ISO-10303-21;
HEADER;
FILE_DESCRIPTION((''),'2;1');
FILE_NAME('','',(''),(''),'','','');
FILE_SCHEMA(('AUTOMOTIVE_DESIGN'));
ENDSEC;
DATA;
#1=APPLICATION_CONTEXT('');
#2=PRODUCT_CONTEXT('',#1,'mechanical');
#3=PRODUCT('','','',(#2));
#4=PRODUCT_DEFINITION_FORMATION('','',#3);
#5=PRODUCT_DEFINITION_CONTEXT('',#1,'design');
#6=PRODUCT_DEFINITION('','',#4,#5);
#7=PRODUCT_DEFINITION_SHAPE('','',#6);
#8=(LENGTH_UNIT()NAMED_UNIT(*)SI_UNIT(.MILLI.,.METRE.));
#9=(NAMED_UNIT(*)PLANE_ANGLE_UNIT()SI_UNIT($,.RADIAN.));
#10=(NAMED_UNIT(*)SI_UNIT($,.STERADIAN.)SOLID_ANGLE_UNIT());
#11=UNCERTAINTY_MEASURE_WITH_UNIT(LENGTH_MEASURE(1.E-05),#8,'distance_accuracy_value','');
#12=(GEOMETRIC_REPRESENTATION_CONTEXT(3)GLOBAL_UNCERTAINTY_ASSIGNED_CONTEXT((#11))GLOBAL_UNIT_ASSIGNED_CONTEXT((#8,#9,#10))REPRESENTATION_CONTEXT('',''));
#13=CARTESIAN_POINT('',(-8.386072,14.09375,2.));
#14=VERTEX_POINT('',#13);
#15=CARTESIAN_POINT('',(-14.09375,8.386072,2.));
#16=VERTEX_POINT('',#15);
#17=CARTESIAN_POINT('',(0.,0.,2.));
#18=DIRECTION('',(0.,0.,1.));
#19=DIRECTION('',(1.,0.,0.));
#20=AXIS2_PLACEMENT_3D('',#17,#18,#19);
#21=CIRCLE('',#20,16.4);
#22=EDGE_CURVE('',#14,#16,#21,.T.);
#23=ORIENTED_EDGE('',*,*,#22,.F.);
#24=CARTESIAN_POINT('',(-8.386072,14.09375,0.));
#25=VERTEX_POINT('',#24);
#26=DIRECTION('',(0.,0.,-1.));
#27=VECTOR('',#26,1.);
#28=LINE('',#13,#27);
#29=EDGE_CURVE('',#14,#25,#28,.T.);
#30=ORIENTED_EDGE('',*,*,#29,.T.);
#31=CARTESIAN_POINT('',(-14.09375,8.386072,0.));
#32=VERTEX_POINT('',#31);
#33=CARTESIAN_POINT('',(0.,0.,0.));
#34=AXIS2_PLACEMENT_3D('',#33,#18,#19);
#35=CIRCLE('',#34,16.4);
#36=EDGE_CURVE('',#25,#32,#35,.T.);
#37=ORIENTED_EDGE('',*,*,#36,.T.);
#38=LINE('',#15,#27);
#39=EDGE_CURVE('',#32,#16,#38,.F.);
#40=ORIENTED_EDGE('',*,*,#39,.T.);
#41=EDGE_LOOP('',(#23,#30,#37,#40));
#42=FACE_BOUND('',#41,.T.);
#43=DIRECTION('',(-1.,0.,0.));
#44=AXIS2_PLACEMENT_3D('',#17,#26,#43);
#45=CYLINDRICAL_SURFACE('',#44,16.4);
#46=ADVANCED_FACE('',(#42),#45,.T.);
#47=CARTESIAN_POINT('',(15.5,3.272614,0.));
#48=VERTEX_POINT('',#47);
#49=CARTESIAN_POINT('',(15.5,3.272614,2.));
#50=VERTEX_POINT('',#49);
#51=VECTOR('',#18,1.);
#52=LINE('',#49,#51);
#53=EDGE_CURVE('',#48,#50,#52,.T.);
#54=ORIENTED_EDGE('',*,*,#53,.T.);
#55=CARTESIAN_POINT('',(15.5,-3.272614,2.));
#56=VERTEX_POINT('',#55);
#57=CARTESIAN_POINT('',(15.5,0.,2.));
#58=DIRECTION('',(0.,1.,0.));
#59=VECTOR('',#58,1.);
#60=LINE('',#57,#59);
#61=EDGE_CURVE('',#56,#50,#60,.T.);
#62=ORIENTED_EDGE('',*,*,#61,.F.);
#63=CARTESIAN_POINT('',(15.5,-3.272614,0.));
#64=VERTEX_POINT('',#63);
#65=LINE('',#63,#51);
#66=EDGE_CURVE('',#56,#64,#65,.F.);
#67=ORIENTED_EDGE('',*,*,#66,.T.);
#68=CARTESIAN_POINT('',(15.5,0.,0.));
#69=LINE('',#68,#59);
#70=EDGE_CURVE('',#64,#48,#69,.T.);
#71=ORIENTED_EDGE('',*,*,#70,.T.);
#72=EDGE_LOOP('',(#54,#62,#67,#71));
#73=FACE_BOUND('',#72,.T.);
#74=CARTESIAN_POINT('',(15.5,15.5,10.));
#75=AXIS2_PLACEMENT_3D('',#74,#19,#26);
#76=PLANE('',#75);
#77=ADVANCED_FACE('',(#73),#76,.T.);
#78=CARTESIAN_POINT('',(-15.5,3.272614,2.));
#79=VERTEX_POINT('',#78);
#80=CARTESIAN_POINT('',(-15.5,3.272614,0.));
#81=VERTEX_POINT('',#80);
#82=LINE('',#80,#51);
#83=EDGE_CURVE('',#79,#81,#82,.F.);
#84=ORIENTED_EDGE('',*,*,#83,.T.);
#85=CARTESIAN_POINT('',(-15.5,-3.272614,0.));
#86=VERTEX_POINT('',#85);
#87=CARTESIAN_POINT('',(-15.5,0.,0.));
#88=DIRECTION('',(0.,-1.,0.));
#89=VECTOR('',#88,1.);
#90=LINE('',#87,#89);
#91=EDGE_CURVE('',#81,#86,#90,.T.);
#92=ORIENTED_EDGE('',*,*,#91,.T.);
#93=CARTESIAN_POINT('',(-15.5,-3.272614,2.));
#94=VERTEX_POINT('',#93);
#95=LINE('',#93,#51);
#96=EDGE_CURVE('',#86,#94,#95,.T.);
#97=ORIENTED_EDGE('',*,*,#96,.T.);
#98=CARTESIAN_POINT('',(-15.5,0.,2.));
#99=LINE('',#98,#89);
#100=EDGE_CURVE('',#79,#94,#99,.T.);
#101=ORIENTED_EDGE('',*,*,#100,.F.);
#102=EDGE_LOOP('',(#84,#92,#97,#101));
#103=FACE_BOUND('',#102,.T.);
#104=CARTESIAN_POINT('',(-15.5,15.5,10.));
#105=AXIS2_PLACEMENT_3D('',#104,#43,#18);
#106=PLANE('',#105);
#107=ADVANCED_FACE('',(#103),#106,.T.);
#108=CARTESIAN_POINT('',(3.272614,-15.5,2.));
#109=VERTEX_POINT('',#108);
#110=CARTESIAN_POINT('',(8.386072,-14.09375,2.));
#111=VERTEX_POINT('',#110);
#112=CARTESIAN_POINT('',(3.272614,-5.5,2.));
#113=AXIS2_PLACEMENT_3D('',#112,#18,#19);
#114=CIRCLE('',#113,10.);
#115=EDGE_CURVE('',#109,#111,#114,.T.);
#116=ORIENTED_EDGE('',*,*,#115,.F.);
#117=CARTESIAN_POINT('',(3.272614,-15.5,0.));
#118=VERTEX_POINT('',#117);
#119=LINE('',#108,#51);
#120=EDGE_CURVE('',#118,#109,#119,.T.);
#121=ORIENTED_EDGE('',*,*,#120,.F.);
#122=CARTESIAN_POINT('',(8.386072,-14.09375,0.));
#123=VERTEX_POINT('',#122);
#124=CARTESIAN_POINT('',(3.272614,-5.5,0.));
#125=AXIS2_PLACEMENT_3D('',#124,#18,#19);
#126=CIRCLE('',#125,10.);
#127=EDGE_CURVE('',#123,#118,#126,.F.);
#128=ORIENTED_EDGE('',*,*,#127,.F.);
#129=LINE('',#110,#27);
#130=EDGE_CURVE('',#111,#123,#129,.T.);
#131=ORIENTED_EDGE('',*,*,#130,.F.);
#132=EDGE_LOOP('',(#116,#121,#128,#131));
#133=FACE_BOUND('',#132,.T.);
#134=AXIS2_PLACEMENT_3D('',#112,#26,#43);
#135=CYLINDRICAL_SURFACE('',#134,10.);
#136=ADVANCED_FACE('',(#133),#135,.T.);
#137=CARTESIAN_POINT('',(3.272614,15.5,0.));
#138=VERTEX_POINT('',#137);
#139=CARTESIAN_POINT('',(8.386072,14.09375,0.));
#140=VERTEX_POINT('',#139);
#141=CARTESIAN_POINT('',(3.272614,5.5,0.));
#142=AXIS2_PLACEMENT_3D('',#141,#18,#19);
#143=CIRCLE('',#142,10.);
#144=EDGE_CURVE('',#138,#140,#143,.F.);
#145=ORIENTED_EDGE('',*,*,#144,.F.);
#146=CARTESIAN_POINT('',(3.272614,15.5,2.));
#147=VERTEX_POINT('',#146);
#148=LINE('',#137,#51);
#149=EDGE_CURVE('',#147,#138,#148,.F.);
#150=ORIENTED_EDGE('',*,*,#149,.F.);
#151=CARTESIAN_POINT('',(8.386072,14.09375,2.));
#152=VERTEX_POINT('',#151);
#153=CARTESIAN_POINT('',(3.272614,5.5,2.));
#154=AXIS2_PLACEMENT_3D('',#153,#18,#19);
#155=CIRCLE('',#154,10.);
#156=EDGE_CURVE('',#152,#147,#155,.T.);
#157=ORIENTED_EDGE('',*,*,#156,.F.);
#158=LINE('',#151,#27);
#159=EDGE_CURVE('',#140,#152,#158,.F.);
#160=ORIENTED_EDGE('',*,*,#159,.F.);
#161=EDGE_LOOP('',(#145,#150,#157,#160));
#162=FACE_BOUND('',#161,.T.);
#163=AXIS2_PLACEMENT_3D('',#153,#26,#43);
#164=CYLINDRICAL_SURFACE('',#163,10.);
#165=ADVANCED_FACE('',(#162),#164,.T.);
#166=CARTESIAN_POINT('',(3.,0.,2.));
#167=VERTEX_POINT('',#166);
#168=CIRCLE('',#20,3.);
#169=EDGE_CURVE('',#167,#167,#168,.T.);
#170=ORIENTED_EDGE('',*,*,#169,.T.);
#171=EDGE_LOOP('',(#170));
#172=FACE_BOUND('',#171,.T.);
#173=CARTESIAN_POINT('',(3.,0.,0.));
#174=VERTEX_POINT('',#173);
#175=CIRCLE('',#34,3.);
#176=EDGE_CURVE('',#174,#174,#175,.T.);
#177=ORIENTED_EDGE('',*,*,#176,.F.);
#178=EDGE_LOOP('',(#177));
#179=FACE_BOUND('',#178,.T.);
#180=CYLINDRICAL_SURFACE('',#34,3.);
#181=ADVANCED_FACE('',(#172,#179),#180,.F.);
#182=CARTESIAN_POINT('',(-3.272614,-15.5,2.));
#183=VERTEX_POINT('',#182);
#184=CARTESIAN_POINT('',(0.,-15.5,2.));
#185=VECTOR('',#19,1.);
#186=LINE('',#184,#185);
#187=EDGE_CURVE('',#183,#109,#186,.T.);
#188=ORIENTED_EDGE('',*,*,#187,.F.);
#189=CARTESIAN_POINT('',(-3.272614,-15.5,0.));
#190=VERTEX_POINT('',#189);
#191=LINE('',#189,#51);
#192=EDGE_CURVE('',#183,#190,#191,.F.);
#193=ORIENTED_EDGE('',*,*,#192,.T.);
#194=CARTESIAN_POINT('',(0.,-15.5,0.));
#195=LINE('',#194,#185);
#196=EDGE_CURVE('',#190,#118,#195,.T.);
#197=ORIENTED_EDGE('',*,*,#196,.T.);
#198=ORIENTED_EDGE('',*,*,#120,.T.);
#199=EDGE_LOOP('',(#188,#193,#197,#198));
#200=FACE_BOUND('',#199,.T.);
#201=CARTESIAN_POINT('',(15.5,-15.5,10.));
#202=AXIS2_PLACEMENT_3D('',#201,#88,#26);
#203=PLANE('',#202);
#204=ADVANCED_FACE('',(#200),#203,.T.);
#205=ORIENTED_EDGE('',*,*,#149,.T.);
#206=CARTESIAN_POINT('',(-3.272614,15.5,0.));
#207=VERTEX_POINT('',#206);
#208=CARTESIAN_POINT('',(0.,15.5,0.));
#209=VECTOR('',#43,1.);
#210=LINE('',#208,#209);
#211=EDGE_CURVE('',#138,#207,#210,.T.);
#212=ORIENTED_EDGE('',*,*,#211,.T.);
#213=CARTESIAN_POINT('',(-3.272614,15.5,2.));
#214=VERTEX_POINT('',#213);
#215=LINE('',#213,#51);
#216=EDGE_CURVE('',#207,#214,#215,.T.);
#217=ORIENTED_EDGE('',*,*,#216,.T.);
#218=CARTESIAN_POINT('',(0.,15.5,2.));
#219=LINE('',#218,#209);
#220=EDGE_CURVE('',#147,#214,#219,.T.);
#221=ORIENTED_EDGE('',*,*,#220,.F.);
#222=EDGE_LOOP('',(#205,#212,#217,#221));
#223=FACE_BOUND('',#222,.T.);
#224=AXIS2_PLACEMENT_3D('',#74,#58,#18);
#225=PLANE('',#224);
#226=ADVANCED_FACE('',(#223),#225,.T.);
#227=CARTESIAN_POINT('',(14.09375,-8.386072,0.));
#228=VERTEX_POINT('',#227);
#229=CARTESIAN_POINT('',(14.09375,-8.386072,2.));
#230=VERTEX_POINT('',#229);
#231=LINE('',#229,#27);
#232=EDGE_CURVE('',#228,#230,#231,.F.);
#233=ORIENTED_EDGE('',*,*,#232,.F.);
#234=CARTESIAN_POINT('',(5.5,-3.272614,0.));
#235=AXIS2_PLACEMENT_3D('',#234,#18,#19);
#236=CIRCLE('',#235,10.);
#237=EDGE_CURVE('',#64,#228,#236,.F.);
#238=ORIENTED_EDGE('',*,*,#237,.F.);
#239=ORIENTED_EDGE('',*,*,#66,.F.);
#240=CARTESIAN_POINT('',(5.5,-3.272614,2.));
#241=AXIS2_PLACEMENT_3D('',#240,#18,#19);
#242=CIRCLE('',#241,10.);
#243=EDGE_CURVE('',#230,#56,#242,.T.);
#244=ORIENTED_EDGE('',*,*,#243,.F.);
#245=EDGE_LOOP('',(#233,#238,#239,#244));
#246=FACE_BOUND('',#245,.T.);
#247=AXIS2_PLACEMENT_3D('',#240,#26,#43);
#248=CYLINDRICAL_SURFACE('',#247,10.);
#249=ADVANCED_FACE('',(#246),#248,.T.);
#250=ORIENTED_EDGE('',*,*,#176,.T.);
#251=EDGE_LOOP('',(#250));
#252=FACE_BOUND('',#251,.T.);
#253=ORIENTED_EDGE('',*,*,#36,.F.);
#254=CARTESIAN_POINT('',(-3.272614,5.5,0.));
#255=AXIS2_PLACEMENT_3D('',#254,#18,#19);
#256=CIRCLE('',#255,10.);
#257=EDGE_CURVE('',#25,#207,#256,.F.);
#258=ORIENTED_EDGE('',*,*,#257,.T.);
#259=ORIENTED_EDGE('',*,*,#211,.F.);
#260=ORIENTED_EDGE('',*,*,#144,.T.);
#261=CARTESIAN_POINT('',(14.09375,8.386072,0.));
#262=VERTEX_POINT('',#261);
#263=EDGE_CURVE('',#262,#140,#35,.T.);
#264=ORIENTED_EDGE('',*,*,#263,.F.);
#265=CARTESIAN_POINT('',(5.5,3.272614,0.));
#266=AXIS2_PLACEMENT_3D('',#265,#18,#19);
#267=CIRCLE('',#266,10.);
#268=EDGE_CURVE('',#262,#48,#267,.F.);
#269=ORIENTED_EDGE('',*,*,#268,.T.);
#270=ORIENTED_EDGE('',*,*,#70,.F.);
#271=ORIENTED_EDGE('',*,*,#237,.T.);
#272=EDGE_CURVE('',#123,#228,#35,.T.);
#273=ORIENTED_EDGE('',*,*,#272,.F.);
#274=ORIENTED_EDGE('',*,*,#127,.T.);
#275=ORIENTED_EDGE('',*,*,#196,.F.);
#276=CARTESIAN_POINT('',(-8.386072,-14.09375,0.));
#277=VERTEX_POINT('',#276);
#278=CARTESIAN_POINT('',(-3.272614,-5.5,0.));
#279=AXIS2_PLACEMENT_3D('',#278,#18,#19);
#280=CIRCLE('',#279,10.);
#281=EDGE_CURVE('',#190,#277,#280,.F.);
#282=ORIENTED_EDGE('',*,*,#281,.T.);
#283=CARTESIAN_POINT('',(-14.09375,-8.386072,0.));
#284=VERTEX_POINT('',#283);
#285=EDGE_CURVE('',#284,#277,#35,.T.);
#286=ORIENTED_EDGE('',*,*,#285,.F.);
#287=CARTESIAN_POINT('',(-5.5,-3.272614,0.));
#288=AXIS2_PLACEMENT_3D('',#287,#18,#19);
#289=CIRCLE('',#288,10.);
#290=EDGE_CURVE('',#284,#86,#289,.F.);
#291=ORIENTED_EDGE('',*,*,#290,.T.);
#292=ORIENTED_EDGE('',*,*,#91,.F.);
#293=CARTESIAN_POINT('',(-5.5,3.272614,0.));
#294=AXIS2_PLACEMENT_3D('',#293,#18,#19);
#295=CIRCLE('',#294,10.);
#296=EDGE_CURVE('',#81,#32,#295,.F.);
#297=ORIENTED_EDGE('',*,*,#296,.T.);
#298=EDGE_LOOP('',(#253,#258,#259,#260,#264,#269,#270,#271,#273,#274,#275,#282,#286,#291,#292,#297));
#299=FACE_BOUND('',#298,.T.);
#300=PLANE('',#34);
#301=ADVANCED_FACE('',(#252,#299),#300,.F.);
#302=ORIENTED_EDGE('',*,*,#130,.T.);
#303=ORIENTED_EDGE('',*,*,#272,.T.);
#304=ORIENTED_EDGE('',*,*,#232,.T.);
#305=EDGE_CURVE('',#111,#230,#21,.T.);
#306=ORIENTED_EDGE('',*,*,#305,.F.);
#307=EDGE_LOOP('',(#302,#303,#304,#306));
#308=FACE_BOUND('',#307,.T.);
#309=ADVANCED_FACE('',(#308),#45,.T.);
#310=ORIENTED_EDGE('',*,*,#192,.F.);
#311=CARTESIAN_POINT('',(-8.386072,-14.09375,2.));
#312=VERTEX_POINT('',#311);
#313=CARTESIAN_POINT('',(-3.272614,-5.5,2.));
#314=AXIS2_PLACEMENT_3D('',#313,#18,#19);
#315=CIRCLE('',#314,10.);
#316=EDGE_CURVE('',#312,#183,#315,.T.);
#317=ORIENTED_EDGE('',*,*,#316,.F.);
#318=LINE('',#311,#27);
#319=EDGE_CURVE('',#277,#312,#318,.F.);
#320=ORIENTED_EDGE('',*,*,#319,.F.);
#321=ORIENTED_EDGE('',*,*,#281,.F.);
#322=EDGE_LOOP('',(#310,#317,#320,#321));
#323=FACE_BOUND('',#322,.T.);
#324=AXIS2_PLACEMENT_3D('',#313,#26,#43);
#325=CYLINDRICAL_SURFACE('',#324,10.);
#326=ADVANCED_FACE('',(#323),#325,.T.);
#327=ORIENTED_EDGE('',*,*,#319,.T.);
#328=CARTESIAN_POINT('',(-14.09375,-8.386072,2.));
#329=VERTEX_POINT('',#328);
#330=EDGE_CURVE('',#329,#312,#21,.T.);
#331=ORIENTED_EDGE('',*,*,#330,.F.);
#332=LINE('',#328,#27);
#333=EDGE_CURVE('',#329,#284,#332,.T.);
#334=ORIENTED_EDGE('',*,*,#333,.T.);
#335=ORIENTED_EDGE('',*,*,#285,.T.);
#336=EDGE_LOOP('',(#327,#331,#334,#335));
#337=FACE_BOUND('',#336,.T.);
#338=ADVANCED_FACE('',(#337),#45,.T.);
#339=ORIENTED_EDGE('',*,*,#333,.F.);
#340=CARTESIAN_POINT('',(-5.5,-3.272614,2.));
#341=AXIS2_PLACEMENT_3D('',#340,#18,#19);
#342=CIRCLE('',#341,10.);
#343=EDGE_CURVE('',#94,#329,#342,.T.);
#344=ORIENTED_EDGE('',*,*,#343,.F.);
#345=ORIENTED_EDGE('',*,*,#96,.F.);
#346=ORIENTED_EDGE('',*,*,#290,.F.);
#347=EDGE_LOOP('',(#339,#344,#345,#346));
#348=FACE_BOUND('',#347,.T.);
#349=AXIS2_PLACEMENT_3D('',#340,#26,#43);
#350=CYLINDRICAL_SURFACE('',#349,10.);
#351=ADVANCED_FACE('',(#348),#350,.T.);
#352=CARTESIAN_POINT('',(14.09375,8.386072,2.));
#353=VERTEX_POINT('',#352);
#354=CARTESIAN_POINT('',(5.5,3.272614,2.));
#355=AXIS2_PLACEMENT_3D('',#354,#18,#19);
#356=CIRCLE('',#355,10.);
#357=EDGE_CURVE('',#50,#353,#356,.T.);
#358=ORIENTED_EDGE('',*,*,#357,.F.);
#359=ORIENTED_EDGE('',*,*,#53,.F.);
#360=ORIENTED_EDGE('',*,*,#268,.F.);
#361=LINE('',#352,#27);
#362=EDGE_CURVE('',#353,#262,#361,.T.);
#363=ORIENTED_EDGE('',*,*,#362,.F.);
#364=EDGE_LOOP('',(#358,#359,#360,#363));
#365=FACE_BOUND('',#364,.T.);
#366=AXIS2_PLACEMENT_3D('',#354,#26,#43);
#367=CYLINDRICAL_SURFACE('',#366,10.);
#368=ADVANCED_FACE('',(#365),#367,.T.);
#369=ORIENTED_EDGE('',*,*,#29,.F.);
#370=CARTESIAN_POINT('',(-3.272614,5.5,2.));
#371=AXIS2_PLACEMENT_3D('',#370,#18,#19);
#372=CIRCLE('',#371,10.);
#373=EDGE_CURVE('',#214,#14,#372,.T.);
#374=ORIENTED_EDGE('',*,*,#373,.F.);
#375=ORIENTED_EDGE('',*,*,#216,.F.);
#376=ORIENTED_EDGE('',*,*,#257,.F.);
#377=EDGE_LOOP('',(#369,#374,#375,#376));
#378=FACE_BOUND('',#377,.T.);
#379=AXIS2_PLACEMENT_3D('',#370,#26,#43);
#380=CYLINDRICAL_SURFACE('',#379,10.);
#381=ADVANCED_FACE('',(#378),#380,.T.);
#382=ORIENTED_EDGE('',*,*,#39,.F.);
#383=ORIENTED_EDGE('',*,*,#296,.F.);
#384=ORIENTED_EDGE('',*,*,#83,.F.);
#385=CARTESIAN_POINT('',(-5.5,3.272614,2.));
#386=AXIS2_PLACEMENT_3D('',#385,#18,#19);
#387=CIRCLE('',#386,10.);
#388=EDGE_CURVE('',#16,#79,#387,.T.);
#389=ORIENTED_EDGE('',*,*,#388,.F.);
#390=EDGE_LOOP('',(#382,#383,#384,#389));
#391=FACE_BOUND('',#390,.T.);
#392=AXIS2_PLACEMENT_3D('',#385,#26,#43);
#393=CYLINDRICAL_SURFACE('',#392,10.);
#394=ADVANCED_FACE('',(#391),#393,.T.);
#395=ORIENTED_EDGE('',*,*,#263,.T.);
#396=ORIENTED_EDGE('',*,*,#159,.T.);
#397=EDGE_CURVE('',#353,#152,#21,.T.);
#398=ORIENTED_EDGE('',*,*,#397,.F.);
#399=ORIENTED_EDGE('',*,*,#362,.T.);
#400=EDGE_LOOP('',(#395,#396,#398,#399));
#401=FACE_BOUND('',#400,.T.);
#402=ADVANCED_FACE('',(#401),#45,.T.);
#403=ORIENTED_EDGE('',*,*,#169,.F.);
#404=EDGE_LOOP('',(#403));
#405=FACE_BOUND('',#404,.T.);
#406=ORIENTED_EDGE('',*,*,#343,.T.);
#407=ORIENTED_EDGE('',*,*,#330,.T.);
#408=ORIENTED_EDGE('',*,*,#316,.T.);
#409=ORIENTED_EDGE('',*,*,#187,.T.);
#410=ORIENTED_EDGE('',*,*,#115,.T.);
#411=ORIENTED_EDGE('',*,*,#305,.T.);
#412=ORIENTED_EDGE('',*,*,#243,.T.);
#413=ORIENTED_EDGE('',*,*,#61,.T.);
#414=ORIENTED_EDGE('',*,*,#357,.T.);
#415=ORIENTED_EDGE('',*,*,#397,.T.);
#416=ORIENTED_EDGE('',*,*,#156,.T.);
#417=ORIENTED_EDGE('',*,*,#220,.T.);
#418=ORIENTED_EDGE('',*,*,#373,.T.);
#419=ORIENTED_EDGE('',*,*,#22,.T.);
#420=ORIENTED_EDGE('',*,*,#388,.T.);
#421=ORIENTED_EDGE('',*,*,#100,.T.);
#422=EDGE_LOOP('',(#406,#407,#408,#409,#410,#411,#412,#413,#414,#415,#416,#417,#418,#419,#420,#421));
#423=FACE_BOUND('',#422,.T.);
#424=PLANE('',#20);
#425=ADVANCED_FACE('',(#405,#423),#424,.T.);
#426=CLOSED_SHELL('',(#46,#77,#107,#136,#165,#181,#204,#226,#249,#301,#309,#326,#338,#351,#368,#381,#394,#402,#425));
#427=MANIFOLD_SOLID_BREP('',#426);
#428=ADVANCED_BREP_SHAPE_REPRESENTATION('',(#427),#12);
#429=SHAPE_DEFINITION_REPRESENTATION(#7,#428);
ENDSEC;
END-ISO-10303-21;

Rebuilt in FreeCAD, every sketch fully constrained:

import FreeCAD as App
import Part
import Sketcher


def edges_at(feature, points):
    """Names of the edges that pass closest to the given points."""
    edges = feature.Shape.Edges
    near = lambda p: min(range(len(edges)), key=lambda i: edges[i].distToShape(Part.Vertex(*p))[0])
    return sorted({f"Edge{near(p) + 1}" for p in points})


def add_polygon(sketch, points):
    """Adds a closed chain of lines whose ends are joined by coincident constraints."""
    first, n = sketch.GeometryCount, len(points)
    for a, b in zip(points, points[1:] + points[:1]):
        sketch.addGeometry(Part.LineSegment(App.Vector(*a, 0), App.Vector(*b, 0)), False)
    for i in range(n):
        sketch.addConstraint(Sketcher.Constraint("Coincident", first + i, 2, first + (i + 1) % n, 1))

doc = App.newDocument("Part")
body = doc.addObject("PartDesign::Body", "Body")

sketch1 = body.newObject("Sketcher::SketchObject", "Sketch")
sketch1.AttachmentSupport = (doc.getObject("XY_Plane"), [""])
sketch1.MapMode = "FlatFace"
sketch1.addGeometry(Part.Circle(App.Vector(0, 0, 0), App.Vector(0, 0, 1), 16.4), False)
sketch1.addConstraint([
    Sketcher.Constraint("Coincident", 0, 3, -1, 1),
    Sketcher.Constraint("Diameter", 0, 32.8),
])
pad1 = body.newObject("PartDesign::Pad", "Pad")
pad1.Profile = sketch1
pad1.Length = 2

sketch2 = body.newObject("Sketcher::SketchObject", "Sketch001")
sketch2.AttachmentSupport = (doc.getObject("XY_Plane"), [""])
sketch2.MapMode = "FlatFace"
sketch2.AttachmentOffset = App.Placement(App.Vector(0, 0, 2), App.Rotation())
sketch2.addGeometry(Part.Circle(App.Vector(0, 0, 0), App.Vector(0, 0, 1), 3), False)
sketch2.addConstraint([
    Sketcher.Constraint("Coincident", 0, 3, -1, 1),
    Sketcher.Constraint("Diameter", 0, 6.0),
])
pocket1 = body.newObject("PartDesign::Pocket", "Pocket")
pocket1.Profile = sketch2
pocket1.Type = "ThroughAll"

sketch3 = body.newObject("Sketcher::SketchObject", "Sketch002")
sketch3.AttachmentSupport = (doc.getObject("XY_Plane"), [""])
sketch3.MapMode = "FlatFace"
add_polygon(sketch3, [(36.118244, 22.376923), (36.118244, -24.330964), (-35.992177, -24.330964), (-35.992177, 22.376923)])
add_polygon(sketch3, [(-15.5, -15.5), (15.5, -15.5), (15.5, 15.5), (-15.5, 15.5)])
sketch3.addConstraint([
    Sketcher.Constraint("Vertical", 0),
    Sketcher.Constraint("Horizontal", 1),
    Sketcher.Constraint("Vertical", 2),
    Sketcher.Constraint("Horizontal", 3),
    Sketcher.Constraint("Horizontal", 4),
    Sketcher.Constraint("Vertical", 5),
    Sketcher.Constraint("Horizontal", 6),
    Sketcher.Constraint("Vertical", 7),
    Sketcher.Constraint("Symmetric", 4, 2, 6, 2, -1, 1),
    Sketcher.Constraint("Equal", 6, 5),
    Sketcher.Constraint("DistanceX", 4, 1, 4, 2, 31.0),
    Sketcher.Constraint("DistanceX", 1, 2, 1, 1, 72.110422),
    Sketcher.Constraint("DistanceY", 0, 2, 0, 1, 46.707887),
    Sketcher.Constraint("DistanceX", -1, 1, 0, 2, 36.118244),
    Sketcher.Constraint("DistanceY", 0, 2, -1, 1, 24.330964),
])
pocket2 = body.newObject("PartDesign::Pocket", "Pocket001")
pocket2.Profile = sketch3
pocket2.Length = 10
pocket2.Reversed = True
doc.recompute()

fillet = body.newObject("PartDesign::Fillet", "Fillet")
fillet.Base = (pocket2, edges_at(pocket2, [
    (15.5, -5.358, 1),
    (15.5, 5.358, 1),
    (5.358, 15.5, 1),
    (-5.358, 15.5, 1),
    (-15.5, 5.358, 1),
    (-15.5, -5.358, 1),
    (-5.358, -15.5, 1),
    (5.358, -15.5, 1),
]))
fillet.Radius = 10

doc.recompute()
